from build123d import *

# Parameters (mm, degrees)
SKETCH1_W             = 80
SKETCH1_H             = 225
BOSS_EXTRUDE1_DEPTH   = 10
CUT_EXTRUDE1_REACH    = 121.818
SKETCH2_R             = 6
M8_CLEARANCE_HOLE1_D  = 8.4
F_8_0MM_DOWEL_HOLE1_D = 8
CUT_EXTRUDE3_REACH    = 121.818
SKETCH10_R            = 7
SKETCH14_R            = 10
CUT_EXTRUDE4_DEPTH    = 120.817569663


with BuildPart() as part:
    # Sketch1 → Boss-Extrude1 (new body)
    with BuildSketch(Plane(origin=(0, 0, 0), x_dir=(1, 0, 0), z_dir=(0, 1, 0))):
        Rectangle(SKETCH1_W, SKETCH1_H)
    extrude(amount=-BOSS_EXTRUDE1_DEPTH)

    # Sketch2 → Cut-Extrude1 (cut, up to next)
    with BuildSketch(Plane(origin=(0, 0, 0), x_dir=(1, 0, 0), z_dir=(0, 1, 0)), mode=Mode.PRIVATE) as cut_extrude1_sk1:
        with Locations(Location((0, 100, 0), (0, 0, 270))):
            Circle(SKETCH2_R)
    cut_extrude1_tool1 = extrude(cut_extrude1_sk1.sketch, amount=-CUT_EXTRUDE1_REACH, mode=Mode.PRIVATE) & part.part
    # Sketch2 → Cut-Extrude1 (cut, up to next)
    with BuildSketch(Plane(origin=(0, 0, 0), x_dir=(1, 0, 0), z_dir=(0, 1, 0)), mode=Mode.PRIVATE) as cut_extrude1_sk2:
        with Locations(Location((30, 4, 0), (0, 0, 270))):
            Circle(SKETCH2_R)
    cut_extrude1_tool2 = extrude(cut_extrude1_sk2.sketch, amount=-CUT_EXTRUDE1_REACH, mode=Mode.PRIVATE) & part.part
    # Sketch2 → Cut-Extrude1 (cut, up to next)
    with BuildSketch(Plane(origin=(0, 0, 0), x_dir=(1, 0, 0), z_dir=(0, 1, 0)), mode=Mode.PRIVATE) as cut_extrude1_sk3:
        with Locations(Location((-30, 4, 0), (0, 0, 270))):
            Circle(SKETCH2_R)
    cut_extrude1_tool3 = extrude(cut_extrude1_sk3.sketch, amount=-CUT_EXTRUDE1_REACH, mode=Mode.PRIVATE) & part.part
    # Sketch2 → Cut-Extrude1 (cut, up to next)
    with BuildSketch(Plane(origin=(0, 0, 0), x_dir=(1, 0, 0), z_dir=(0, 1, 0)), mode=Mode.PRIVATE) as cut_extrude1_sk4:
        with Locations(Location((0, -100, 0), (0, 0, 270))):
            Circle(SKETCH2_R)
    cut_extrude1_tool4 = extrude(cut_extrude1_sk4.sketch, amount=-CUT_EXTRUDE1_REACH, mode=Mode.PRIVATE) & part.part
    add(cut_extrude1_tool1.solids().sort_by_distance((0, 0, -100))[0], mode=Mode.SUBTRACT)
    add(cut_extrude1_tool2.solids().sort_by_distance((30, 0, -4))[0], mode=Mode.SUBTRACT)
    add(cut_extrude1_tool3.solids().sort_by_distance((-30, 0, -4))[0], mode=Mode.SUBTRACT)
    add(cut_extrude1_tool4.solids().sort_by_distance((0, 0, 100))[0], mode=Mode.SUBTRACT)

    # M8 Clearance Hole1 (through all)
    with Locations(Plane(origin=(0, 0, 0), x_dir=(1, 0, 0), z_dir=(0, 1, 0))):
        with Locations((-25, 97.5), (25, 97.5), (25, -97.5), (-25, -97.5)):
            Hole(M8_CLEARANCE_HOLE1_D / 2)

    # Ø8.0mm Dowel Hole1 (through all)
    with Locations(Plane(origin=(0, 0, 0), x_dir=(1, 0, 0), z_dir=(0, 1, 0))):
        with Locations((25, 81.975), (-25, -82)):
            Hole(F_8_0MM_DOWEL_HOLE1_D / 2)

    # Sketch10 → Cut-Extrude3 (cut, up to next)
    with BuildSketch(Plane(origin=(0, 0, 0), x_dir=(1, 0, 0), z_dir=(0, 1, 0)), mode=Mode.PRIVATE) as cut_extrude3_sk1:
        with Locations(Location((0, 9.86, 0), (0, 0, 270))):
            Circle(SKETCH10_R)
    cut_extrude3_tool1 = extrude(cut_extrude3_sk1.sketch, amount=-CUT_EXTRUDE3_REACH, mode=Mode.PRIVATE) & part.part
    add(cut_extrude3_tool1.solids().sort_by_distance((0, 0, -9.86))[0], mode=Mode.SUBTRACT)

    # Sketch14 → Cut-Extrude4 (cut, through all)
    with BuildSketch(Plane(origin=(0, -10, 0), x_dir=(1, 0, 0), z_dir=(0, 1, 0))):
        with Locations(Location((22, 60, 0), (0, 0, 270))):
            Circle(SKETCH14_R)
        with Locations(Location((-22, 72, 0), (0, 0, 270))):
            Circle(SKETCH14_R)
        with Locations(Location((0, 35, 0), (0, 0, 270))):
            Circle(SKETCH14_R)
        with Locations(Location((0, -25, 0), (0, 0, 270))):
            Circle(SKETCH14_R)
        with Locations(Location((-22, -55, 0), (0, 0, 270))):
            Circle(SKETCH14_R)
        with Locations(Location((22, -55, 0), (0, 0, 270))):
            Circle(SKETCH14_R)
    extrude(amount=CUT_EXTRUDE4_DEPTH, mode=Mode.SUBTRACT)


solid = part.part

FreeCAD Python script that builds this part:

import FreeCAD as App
import Part
import Sketcher

V = App.Vector
Q = App.Units.Quantity

doc = App.newDocument("Part")
params = doc.addObject("Spreadsheet::Sheet", "Params")
for row, (alias, value) in enumerate([
    ("sketch1_width", "80 mm"),
    ("sketch1_height", "225 mm"),
    ("pad1_length", "10 mm"),
    ("sketch2_diameter", "12 mm"),
    ("sketch3_diameter", "12 mm"),
    ("sketch4_diameter", "12 mm"),
    ("sketch5_diameter", "12 mm"),
    ("sketch6_diameter", "8.4 mm"),
    ("hole_diameter", "8.4 mm"),
    ("sketch7_diameter", "8 mm"),
    ("hole2_diameter", "8 mm"),
    ("sketch8_diameter", "14 mm"),
    ("sketch9_diameter", "20 mm"),
], start=1):
    params.set(f"A{row}", alias)
    params.set(f"B{row}", "=" + value)
    params.setAlias(f"B{row}", alias)

body = doc.addObject("PartDesign::Body", "Body")

# Sketch on XZ plane
sketch1 = doc.addObject("Sketcher::SketchObject", "Sketch")
body.addObject(sketch1)
sketch1.AttachmentSupport = (doc.XZ_Plane, [""])
sketch1.MapMode = "FlatFace"
sketch1.addGeometry([
    Part.LineSegment(V(-40, -112.5, 0), V(-40, 112.5, 0)),
    Part.LineSegment(V(-40, 112.5, 0), V(40, 112.5, 0)),
    Part.LineSegment(V(40, 112.5, 0), V(40, -112.5, 0)),
    Part.LineSegment(V(40, -112.5, 0), V(-40, -112.5, 0)),
], False)
sketch1.addConstraint([
    Sketcher.Constraint("Coincident", 0, 2, 1, 1),
    Sketcher.Constraint("Coincident", 1, 2, 2, 1),
    Sketcher.Constraint("Coincident", 2, 2, 3, 1),
    Sketcher.Constraint("Coincident", 3, 2, 0, 1),
    Sketcher.Constraint("Vertical", 0),
    Sketcher.Constraint("Horizontal", 1),
    Sketcher.Constraint("Vertical", 2),
    Sketcher.Constraint("Horizontal", 3),
    Sketcher.Constraint("Symmetric", 0, 2, 2, 2, -1, 1),
    Sketcher.Constraint("DistanceX", 1, 1, 1, 2, Q("80 mm")),
    Sketcher.Constraint("DistanceY", 0, 1, 0, 2, Q("225 mm")),
])
sketch1.setExpression("Constraints[9]", "Params.sketch1_width")
sketch1.setExpression("Constraints[10]", "Params.sketch1_height")
pad1 = doc.addObject("PartDesign::Pad", "Pad")
body.addObject(pad1)
pad1.Profile = sketch1
pad1.setExpression("Length", "Params.pad1_length")

# Sketch on XZ plane
sketch2 = doc.addObject("Sketcher::SketchObject", "Sketch001")
body.addObject(sketch2)
sketch2.AttachmentSupport = (doc.XZ_Plane, [""])
sketch2.MapMode = "FlatFace"
sketch2.addGeometry(Part.Circle(V(0, -100, 0), V(0, 0, 1), 6), False)
sketch2.addConstraint([
    Sketcher.Constraint("PointOnObject", 0, 3, -2),
    Sketcher.Constraint("Diameter", 0, Q("12 mm")),
    Sketcher.Constraint("DistanceY", 0, 3, -1, 1, Q("100 mm")),
])
sketch2.setExpression("Constraints[1]", "Params.sketch2_diameter")
pocket1 = doc.addObject("PartDesign::Pocket", "Pocket")
body.addObject(pocket1)
pocket1.Profile = sketch2
pocket1.Type = "UpToFirst"
pocket1.Reversed = True

# Sketch on XZ plane
sketch3 = doc.addObject("Sketcher::SketchObject", "Sketch002")
body.addObject(sketch3)
sketch3.AttachmentSupport = (doc.XZ_Plane, [""])
sketch3.MapMode = "FlatFace"
sketch3.addGeometry(Part.Circle(V(30, -4, 0), V(0, 0, 1), 6), False)
sketch3.addConstraint([
    Sketcher.Constraint("Diameter", 0, Q("12 mm")),
    Sketcher.Constraint("DistanceX", -1, 1, 0, 3, Q("30 mm")),
    Sketcher.Constraint("DistanceY", 0, 3, -1, 1, Q("4 mm")),
])
sketch3.setExpression("Constraints[0]", "Params.sketch3_diameter")
pocket2 = doc.addObject("PartDesign::Pocket", "Pocket001")
body.addObject(pocket2)
pocket2.Profile = sketch3
pocket2.Type = "UpToFirst"
pocket2.Reversed = True

# Sketch on XZ plane
sketch4 = doc.addObject("Sketcher::SketchObject", "Sketch003")
body.addObject(sketch4)
sketch4.AttachmentSupport = (doc.XZ_Plane, [""])
sketch4.MapMode = "FlatFace"
sketch4.addGeometry(Part.Circle(V(-30, -4, 0), V(0, 0, 1), 6), False)
sketch4.addConstraint([
    Sketcher.Constraint("Diameter", 0, Q("12 mm")),
    Sketcher.Constraint("DistanceX", 0, 3, -1, 1, Q("30 mm")),
    Sketcher.Constraint("DistanceY", 0, 3, -1, 1, Q("4 mm")),
])
sketch4.setExpression("Constraints[0]", "Params.sketch4_diameter")
pocket3 = doc.addObject("PartDesign::Pocket", "Pocket002")
body.addObject(pocket3)
pocket3.Profile = sketch4
pocket3.Type = "UpToFirst"
pocket3.Reversed = True

# Sketch on XZ plane
sketch5 = doc.addObject("Sketcher::SketchObject", "Sketch004")
body.addObject(sketch5)
sketch5.AttachmentSupport = (doc.XZ_Plane, [""])
sketch5.MapMode = "FlatFace"
sketch5.addGeometry(Part.Circle(V(0, 100, 0), V(0, 0, 1), 6), False)
sketch5.addConstraint([
    Sketcher.Constraint("PointOnObject", 0, 3, -2),
    Sketcher.Constraint("Diameter", 0, Q("12 mm")),
    Sketcher.Constraint("DistanceY", -1, 1, 0, 3, Q("100 mm")),
])
sketch5.setExpression("Constraints[1]", "Params.sketch5_diameter")
pocket4 = doc.addObject("PartDesign::Pocket", "Pocket003")
body.addObject(pocket4)
pocket4.Profile = sketch5
pocket4.Type = "UpToFirst"
pocket4.Reversed = True

# Sketch on XZ plane
sketch6 = doc.addObject("Sketcher::SketchObject", "Sketch005")
body.addObject(sketch6)
sketch6.AttachmentSupport = (doc.XZ_Plane, [""])
sketch6.MapMode = "FlatFace"
sketch6.addGeometry([
    Part.Circle(V(-25, -97.5, 0), V(0, 0, 1), 4.2),
    Part.Circle(V(25, -97.5, 0), V(0, 0, 1), 4.2),
    Part.Circle(V(25, 97.5, 0), V(0, 0, 1), 4.2),
    Part.Circle(V(-25, 97.5, 0), V(0, 0, 1), 4.2),
], False)
sketch6.addConstraint([
    Sketcher.Constraint("Equal", 0, 1),
    Sketcher.Constraint("Equal", 1, 2),
    Sketcher.Constraint("Equal", 2, 3),
    Sketcher.Constraint("Symmetric", 0, 3, 2, 3, -1, 1),
    Sketcher.Constraint("Symmetric", 1, 3, 3, 3, -1, 1),
    Sketcher.Constraint("Symmetric", 0, 3, 1, 3, -2),
    Sketcher.Constraint("Diameter", 0, Q("8.4 mm")),
    Sketcher.Constraint("DistanceX", 0, 3, -1, 1, Q("25 mm")),
    Sketcher.Constraint("DistanceY", 1, 3, 2, 3, Q("195 mm")),
])
sketch6.setExpression("Constraints[6]", "Params.sketch6_diameter")
doc.recompute()
hole = doc.addObject("PartDesign::Hole", "Hole")
body.addObject(hole)
hole.Profile = sketch6
hole.ThreadType = "None"
hole.setExpression("Diameter", "Params.hole_diameter")
hole.DepthType = "ThroughAll"
hole.Reversed = True

# Sketch on XZ plane
sketch7 = doc.addObject("Sketcher::SketchObject", "Sketch006")
body.addObject(sketch7)
sketch7.AttachmentSupport = (doc.XZ_Plane, [""])
sketch7.MapMode = "FlatFace"
sketch7.addGeometry([
    Part.Circle(V(25, -81.975, 0), V(0, 0, 1), 4),
    Part.Circle(V(-25, 82, 0), V(0, 0, 1), 4),
], False)
sketch7.addConstraint([
    Sketcher.Constraint("Equal", 0, 1),
    Sketcher.Constraint("Diameter", 0, Q("8 mm")),
    Sketcher.Constraint("DistanceX", -1, 1, 0, 3, Q("25 mm")),
    Sketcher.Constraint("DistanceX", 1, 3, -1, 1, Q("25 mm")),
    Sketcher.Constraint("DistanceY", -1, 1, 1, 3, Q("82 mm")),
    Sketcher.Constraint("DistanceY", 0, 3, -1, 1, Q("81.975 mm")),
])
sketch7.setExpression("Constraints[1]", "Params.sketch7_diameter")
doc.recompute()
hole2 = doc.addObject("PartDesign::Hole", "Hole001")
body.addObject(hole2)
hole2.Profile = sketch7
hole2.ThreadType = "None"
hole2.setExpression("Diameter", "Params.hole2_diameter")
hole2.DepthType = "ThroughAll"
hole2.Reversed = True

# Sketch on XZ plane
sketch8 = doc.addObject("Sketcher::SketchObject", "Sketch007")
body.addObject(sketch8)
sketch8.AttachmentSupport = (doc.XZ_Plane, [""])
sketch8.MapMode = "FlatFace"
sketch8.addGeometry(Part.Circle(V(0, -9.86, 0), V(0, 0, 1), 7), False)
sketch8.addConstraint([
    Sketcher.Constraint("PointOnObject", 0, 3, -2),
    Sketcher.Constraint("Diameter", 0, Q("14 mm")),
    Sketcher.Constraint("DistanceY", 0, 3, -1, 1, Q("9.86 mm")),
])
sketch8.setExpression("Constraints[1]", "Params.sketch8_diameter")
pocket5 = doc.addObject("PartDesign::Pocket", "Pocket004")
body.addObject(pocket5)
pocket5.Profile = sketch8
pocket5.Type = "UpToFirst"
pocket5.Reversed = True

# Sketch on XZ plane
sketch9 = doc.addObject("Sketcher::SketchObject", "Sketch008")
body.addObject(sketch9)
sketch9.AttachmentSupport = (doc.XZ_Plane, [""])
sketch9.MapMode = "FlatFace"
sketch9.AttachmentOffset = App.Placement(V(0, 0, 10), App.Rotation())
sketch9.addGeometry([
    Part.Circle(V(22, -60, 0), V(0, 0, 1), 10),  # 0
    Part.Circle(V(-22, -72, 0), V(0, 0, 1), 10),  # 1
    Part.Circle(V(0, -35, 0), V(0, 0, 1), 10),  # 2
    Part.Circle(V(0, 25, 0), V(0, 0, 1), 10),  # 3
    Part.Circle(V(-22, 55, 0), V(0, 0, 1), 10),  # 4
    Part.Circle(V(22, 55, 0), V(0, 0, 1), 10),  # 5
], False)
sketch9.addConstraint([
    Sketcher.Constraint("Equal", 0, 1),
    Sketcher.Constraint("Equal", 1, 2),
    Sketcher.Constraint("Equal", 2, 3),
    Sketcher.Constraint("Equal", 3, 4),
    Sketcher.Constraint("Equal", 4, 5),
    Sketcher.Constraint("Symmetric", 4, 3, 5, 3, -2),
    Sketcher.Constraint("PointOnObject", 2, 3, -2),
    Sketcher.Constraint("PointOnObject", 3, 3, -2),
    Sketcher.Constraint("Vertical", 1, 3, 4, 3),
    Sketcher.Constraint("Vertical", 0, 3, 5, 3),
    Sketcher.Constraint("Diameter", 0, Q("20 mm")),
    Sketcher.Constraint("DistanceX", -1, 1, 0, 3, Q("22 mm")),
    Sketcher.Constraint("DistanceY", 0, 3, -1, 1, Q("60 mm")),
    Sketcher.Constraint("DistanceY", 1, 3, -1, 1, Q("72 mm")),
    Sketcher.Constraint("DistanceY", 2, 3, -1, 1, Q("35 mm")),
    Sketcher.Constraint("DistanceY", -1, 1, 3, 3, Q("25 mm")),
    Sketcher.Constraint("DistanceY", -1, 1, 4, 3, Q("55 mm")),
])
sketch9.setExpression("Constraints[10]", "Params.sketch9_diameter")
pocket6 = doc.addObject("PartDesign::Pocket", "Pocket005")
body.addObject(pocket6)
pocket6.Profile = sketch9
pocket6.Type = "ThroughAll"

doc.recompute()
